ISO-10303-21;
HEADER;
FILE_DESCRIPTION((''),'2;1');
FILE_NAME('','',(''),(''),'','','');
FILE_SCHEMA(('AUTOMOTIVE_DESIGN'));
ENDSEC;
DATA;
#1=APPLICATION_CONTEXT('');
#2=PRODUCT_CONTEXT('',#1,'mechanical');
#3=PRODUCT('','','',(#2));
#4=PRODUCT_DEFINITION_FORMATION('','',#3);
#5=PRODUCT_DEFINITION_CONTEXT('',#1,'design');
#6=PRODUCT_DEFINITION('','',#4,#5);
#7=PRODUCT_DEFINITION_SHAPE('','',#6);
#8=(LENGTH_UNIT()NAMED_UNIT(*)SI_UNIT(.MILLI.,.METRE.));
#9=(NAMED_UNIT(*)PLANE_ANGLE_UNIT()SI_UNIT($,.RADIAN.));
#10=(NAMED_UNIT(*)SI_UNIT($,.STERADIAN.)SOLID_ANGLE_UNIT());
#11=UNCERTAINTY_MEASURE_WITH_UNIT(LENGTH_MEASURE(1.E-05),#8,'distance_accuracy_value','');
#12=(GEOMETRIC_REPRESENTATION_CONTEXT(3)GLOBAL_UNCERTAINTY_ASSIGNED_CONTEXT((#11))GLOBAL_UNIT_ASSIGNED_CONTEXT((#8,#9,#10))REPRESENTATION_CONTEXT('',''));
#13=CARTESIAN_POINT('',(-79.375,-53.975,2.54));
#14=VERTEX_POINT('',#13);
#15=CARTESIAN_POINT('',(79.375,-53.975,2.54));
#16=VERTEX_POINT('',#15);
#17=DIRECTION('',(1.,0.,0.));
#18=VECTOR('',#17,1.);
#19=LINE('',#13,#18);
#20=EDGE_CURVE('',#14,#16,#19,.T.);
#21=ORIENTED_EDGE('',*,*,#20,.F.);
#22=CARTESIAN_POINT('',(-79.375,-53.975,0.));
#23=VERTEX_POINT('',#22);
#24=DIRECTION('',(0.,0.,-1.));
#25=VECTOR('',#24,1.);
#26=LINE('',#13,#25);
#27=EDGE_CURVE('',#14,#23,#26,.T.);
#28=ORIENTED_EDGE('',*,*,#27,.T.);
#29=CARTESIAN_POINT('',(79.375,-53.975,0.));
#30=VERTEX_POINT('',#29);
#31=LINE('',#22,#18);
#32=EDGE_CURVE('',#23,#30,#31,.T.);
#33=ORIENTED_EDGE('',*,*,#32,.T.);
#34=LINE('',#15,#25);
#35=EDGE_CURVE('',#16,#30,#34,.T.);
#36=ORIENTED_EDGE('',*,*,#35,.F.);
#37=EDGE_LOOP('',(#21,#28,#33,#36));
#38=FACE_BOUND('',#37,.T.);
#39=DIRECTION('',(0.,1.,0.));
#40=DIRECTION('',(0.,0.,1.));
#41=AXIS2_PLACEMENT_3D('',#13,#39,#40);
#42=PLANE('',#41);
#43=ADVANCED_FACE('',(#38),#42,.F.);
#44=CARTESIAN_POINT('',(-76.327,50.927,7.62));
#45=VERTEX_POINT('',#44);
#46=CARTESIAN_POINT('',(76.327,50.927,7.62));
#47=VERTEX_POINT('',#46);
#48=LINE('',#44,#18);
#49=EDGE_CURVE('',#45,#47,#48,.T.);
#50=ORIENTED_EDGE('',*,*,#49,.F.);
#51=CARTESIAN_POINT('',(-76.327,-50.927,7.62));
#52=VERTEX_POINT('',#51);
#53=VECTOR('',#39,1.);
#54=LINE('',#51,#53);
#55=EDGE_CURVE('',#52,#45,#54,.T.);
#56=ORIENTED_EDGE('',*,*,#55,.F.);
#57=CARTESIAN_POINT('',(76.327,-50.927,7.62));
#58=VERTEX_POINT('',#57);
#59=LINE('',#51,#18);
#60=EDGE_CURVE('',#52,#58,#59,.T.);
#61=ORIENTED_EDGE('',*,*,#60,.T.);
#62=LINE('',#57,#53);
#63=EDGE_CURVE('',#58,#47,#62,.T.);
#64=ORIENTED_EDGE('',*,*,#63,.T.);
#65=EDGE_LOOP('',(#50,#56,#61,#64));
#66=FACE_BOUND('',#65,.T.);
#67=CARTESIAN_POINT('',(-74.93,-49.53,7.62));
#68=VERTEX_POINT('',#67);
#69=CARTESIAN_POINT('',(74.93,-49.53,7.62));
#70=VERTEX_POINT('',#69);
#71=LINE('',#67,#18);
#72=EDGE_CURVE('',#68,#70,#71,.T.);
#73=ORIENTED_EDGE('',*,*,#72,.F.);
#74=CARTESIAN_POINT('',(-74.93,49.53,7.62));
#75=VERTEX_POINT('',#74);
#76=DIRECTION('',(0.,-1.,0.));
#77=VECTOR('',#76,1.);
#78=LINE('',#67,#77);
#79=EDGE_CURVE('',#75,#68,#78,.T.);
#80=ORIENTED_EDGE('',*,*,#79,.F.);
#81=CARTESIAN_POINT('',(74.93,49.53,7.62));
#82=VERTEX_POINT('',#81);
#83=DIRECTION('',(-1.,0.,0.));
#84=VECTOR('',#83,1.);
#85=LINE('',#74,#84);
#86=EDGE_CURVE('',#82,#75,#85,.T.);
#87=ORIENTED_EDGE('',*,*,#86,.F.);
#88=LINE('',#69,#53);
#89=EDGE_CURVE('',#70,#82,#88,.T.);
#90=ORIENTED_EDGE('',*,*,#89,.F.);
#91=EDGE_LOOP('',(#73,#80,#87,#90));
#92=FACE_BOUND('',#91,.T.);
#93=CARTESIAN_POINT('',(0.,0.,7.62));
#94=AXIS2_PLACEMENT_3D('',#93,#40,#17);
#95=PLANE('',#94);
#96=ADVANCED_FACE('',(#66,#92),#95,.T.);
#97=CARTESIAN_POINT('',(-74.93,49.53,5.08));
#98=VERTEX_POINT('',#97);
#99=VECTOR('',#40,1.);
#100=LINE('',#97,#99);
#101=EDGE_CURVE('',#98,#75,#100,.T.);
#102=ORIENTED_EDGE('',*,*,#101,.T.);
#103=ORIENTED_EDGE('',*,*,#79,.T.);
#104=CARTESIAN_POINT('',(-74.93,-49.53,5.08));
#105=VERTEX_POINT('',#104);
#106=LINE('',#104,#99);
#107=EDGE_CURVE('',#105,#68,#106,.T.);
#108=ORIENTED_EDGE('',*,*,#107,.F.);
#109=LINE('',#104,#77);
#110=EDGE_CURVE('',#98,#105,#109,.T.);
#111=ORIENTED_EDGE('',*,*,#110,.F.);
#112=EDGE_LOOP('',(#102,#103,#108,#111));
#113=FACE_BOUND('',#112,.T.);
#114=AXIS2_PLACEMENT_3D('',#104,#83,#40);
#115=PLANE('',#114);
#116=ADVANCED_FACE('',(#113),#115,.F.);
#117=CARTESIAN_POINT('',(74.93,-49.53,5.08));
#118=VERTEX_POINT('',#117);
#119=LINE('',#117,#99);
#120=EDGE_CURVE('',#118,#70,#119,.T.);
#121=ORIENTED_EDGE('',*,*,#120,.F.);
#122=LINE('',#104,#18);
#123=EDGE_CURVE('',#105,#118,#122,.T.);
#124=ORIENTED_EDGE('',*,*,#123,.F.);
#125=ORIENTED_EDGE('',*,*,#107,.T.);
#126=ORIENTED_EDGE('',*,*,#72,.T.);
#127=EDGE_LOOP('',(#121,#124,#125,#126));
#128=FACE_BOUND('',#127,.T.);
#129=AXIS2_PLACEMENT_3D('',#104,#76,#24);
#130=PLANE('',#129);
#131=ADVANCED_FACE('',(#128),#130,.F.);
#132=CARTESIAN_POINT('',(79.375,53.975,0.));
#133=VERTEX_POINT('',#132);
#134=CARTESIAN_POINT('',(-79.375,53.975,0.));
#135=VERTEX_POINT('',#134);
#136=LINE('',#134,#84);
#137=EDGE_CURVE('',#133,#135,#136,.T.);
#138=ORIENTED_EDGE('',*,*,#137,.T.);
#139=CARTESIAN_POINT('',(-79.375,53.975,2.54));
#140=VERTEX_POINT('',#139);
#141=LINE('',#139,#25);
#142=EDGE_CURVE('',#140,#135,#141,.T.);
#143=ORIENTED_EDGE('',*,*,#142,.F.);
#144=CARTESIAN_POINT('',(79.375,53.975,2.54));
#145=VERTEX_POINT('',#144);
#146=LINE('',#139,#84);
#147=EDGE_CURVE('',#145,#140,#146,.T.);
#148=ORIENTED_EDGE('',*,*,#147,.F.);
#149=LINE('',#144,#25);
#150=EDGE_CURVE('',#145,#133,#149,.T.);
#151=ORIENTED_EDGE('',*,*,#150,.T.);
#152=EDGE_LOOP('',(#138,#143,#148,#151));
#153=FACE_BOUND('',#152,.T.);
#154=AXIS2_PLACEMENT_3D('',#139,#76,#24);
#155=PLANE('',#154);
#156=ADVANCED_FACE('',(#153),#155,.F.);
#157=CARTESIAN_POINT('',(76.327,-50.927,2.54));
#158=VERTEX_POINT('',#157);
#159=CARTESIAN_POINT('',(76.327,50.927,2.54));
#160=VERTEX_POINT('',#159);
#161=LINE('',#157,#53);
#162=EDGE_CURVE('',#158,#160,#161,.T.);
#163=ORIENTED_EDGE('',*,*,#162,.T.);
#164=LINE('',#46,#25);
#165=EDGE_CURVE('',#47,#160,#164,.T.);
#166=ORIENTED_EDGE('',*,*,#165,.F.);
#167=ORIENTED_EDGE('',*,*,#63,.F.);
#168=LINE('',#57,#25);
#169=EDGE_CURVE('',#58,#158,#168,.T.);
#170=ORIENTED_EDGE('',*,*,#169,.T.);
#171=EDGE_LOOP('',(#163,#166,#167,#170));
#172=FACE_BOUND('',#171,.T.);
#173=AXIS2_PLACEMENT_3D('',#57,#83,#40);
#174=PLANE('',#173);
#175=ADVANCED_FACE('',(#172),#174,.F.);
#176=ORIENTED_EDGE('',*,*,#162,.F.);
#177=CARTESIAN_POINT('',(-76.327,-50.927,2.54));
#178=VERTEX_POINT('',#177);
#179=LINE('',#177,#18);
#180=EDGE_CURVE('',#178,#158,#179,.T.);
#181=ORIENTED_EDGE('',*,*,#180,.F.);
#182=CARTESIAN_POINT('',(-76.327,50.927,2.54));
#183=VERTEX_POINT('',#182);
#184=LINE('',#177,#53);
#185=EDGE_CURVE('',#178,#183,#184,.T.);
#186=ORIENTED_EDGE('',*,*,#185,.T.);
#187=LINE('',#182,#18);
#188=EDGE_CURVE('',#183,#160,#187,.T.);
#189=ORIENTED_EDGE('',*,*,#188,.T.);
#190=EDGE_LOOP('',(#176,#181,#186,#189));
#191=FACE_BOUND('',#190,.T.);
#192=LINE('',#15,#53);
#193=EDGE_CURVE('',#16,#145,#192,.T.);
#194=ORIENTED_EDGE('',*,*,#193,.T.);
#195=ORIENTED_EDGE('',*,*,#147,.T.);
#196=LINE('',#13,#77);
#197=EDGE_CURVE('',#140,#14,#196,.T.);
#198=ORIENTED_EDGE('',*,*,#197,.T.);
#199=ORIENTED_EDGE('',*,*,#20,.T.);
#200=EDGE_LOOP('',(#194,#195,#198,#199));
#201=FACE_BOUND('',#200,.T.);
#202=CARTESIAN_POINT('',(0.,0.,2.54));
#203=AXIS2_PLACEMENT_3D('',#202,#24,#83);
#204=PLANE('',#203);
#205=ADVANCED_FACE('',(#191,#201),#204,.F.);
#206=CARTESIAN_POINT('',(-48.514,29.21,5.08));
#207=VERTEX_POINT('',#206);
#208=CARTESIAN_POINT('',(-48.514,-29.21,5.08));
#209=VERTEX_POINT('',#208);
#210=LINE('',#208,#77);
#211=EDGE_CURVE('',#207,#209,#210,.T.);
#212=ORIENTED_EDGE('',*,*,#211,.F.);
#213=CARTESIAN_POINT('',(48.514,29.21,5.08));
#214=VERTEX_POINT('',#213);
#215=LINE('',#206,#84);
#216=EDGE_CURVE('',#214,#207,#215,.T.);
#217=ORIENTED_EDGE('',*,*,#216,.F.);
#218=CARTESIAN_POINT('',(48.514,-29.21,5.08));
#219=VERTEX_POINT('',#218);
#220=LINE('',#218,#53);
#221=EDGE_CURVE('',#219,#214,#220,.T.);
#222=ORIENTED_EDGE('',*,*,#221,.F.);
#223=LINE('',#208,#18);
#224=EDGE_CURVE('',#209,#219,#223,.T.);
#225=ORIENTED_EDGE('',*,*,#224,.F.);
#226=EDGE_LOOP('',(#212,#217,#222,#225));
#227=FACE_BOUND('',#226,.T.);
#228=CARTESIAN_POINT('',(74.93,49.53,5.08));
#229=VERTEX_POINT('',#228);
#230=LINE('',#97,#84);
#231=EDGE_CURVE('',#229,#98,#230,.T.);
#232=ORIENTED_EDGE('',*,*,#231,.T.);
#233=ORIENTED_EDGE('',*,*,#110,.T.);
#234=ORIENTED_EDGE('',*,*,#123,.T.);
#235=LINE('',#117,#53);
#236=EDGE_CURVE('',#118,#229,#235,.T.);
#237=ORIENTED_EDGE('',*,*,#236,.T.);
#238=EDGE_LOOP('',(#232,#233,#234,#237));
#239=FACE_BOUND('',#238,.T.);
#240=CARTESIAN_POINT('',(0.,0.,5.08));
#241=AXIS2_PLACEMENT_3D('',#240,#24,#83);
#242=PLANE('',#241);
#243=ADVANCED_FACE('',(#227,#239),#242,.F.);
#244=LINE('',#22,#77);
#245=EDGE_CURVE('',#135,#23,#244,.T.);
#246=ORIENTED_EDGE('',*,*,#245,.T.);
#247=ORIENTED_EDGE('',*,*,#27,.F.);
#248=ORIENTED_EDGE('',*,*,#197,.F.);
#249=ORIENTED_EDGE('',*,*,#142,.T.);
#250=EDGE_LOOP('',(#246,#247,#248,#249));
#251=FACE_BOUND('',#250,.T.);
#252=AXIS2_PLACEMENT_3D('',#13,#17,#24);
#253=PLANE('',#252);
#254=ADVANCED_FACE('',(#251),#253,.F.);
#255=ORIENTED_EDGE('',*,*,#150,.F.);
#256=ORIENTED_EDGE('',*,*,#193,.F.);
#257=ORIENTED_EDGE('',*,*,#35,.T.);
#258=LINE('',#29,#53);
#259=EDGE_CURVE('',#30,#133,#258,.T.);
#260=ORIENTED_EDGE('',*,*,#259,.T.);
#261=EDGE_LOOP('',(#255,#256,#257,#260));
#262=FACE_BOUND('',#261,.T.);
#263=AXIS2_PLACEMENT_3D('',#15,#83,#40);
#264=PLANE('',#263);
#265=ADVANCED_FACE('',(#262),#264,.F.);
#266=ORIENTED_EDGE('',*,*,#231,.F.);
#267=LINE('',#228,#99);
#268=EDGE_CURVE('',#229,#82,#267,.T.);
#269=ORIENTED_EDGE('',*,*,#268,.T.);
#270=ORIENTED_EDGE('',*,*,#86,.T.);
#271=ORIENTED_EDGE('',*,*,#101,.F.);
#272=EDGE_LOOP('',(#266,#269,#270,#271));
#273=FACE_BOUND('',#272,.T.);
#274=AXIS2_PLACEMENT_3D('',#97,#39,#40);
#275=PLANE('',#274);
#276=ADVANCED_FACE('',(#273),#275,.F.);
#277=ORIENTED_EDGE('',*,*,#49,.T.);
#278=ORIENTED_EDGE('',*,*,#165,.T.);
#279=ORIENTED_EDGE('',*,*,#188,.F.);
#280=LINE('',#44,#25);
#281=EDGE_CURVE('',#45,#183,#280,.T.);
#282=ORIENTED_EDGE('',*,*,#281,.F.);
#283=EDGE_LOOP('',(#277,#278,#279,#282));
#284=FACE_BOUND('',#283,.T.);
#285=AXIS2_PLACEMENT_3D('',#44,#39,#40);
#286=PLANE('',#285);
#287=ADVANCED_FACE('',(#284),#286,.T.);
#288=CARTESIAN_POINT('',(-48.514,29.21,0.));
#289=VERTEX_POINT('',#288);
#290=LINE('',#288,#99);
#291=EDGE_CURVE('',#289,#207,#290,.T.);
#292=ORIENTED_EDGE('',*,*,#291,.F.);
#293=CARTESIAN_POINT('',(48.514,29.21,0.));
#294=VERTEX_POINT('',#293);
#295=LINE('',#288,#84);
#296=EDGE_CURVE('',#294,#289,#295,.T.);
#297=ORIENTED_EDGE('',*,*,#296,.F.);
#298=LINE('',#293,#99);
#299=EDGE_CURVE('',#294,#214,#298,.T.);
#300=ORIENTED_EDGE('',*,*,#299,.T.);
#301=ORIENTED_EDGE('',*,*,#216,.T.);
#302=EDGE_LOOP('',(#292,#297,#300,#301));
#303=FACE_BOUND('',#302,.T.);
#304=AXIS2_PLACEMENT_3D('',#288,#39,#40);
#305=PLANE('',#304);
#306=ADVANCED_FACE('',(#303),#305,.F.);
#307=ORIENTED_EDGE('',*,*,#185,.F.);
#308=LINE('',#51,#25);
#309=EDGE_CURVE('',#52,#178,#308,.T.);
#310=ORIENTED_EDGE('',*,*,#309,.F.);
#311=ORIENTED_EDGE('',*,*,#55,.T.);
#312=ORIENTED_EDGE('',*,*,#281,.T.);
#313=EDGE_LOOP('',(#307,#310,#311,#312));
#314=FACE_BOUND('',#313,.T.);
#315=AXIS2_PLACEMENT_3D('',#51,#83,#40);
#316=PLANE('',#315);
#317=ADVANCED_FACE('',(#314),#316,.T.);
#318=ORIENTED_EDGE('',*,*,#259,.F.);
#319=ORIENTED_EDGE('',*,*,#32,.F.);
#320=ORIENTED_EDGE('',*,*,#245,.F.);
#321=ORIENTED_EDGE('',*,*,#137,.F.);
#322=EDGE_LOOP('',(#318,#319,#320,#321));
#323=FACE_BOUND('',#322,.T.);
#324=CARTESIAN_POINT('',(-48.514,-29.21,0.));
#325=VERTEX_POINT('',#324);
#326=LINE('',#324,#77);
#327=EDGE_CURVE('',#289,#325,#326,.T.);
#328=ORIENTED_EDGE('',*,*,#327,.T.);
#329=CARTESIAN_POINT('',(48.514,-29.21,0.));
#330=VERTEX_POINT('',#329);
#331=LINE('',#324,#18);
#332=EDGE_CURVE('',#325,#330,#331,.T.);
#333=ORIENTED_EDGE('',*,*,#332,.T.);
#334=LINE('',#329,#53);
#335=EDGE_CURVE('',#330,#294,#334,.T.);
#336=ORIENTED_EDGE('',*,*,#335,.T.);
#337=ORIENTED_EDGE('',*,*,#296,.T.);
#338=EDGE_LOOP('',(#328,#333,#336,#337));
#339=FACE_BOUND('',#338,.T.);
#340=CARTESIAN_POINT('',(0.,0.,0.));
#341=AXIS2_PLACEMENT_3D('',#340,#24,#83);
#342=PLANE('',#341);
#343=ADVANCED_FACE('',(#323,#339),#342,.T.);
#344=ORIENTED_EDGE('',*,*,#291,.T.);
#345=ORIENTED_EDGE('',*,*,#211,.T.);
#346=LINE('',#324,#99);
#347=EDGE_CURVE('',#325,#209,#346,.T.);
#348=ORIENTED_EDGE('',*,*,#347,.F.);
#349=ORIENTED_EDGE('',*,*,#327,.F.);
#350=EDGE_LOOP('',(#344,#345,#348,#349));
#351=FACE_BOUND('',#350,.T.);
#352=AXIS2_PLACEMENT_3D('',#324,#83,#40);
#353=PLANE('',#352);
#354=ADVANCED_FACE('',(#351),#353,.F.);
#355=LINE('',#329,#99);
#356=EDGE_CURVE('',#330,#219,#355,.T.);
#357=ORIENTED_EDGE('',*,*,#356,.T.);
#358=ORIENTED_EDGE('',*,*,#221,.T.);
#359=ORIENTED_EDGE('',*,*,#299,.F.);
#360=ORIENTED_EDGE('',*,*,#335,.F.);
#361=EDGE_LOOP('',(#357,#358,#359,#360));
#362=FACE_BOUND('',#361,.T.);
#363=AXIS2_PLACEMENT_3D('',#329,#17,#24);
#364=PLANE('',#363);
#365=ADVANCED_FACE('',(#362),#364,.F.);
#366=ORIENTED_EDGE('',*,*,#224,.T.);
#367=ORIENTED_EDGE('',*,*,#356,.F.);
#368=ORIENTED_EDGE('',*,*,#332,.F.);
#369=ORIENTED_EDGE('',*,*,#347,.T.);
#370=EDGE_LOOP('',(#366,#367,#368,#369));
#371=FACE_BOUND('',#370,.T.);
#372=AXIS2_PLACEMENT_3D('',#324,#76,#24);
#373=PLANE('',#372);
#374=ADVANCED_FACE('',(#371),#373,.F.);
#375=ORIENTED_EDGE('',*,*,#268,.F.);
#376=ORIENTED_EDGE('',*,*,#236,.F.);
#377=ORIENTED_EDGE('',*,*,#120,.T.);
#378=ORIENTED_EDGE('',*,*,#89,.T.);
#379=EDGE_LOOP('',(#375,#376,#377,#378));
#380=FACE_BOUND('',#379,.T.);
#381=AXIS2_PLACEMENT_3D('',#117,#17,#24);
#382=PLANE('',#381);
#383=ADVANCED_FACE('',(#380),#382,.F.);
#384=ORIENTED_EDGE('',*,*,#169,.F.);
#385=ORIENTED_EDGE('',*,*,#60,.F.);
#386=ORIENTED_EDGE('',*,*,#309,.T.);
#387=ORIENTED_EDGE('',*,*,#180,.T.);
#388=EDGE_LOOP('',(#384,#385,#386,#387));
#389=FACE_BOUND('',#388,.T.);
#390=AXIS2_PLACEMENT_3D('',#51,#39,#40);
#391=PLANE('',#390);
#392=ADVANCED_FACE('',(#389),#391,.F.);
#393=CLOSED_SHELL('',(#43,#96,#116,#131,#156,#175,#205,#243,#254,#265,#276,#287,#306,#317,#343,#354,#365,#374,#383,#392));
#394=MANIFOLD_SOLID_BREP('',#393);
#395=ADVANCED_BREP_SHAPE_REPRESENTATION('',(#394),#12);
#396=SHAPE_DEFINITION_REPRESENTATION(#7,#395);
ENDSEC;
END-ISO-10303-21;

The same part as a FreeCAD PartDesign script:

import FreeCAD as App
import Part
import Sketcher

V = App.Vector
Q = App.Units.Quantity

doc = App.newDocument("Part")
body = doc.addObject("PartDesign::Body", "Body")

sketch1 = body.newObject("Sketcher::SketchObject", "Sketch")
sketch1.AttachmentSupport = (doc.getObject("XY_Plane"), [""])
sketch1.MapMode = "FlatFace"
sketch1.addGeometry(Part.LineSegment(V(-79, 54, 0), V(-79, -54, 0)), False)
sketch1.addGeometry(Part.LineSegment(V(-79, -54, 0), V(79, -54, 0)), False)
sketch1.addGeometry(Part.LineSegment(V(79, -54, 0), V(79, 54, 0)), False)
sketch1.addGeometry(Part.LineSegment(V(79, 54, 0), V(-79, 54, 0)), False)
sketch1.addConstraint(Sketcher.Constraint("Coincident", 0, 2, 1, 1))
sketch1.addConstraint(Sketcher.Constraint("Coincident", 1, 2, 2, 1))
sketch1.addConstraint(Sketcher.Constraint("Coincident", 2, 2, 3, 1))
sketch1.addConstraint(Sketcher.Constraint("Coincident", 3, 2, 0, 1))
sketch1.addConstraint(Sketcher.Constraint("Vertical", 0))
sketch1.addConstraint(Sketcher.Constraint("Horizontal", 1))
sketch1.addConstraint(Sketcher.Constraint("Vertical", 2))
sketch1.addConstraint(Sketcher.Constraint("Horizontal", 3))
sketch1.addConstraint(Sketcher.Constraint("Symmetric", 0, 2, 2, 2, -1, 1))
sketch1.addConstraint(Sketcher.Constraint("DistanceX", 1, 1, 1, 2, Q("6.25 in")))
sketch1.addConstraint(Sketcher.Constraint("DistanceY", 0, 2, 0, 1, Q("4.25 in")))
pad1 = body.newObject("PartDesign::Pad", "Pad")
pad1.Profile = sketch1
pad1.Length = Q("0.1 in")

sketch2 = body.newObject("Sketcher::SketchObject", "Sketch001")
sketch2.AttachmentSupport = (doc.getObject("XY_Plane"), [""])
sketch2.MapMode = "FlatFace"
sketch2.AttachmentOffset = App.Placement(V(0, 0, 0.1 * 25.4), App.Rotation())
sketch2.addGeometry(Part.LineSegment(V(-76, 51, 0), V(-76, -51, 0)), False)
sketch2.addGeometry(Part.LineSegment(V(-76, -51, 0), V(76, -51, 0)), False)
sketch2.addGeometry(Part.LineSegment(V(76, -51, 0), V(76, 51, 0)), False)
sketch2.addGeometry(Part.LineSegment(V(76, 51, 0), V(-76, 51, 0)), False)
sketch2.addConstraint(Sketcher.Constraint("Coincident", 0, 2, 1, 1))
sketch2.addConstraint(Sketcher.Constraint("Coincident", 1, 2, 2, 1))
sketch2.addConstraint(Sketcher.Constraint("Coincident", 2, 2, 3, 1))
sketch2.addConstraint(Sketcher.Constraint("Coincident", 3, 2, 0, 1))
sketch2.addConstraint(Sketcher.Constraint("Vertical", 0))
sketch2.addConstraint(Sketcher.Constraint("Horizontal", 1))
sketch2.addConstraint(Sketcher.Constraint("Vertical", 2))
sketch2.addConstraint(Sketcher.Constraint("Horizontal", 3))
sketch2.addConstraint(Sketcher.Constraint("Symmetric", 0, 2, 2, 2, -1, 1))
sketch2.addConstraint(Sketcher.Constraint("DistanceX", 1, 1, 1, 2, Q("6.01 in")))
sketch2.addConstraint(Sketcher.Constraint("DistanceY", 0, 2, 0, 1, Q("4.01 in")))
pad2 = body.newObject("PartDesign::Pad", "Pad001")
pad2.Profile = sketch2
pad2.Length = Q("0.2 in")

sketch3 = body.newObject("Sketcher::SketchObject", "Sketch002")
sketch3.AttachmentSupport = (doc.getObject("XY_Plane"), [""])
sketch3.MapMode = "FlatFace"
sketch3.AttachmentOffset = App.Placement(V(0, 0, 0.3 * 25.4), App.Rotation())
sketch3.addGeometry(Part.LineSegment(V(-75, 50, 0), V(-75, -50, 0)), False)
sketch3.addGeometry(Part.LineSegment(V(-75, -50, 0), V(75, -50, 0)), False)
sketch3.addGeometry(Part.LineSegment(V(75, -50, 0), V(75, 50, 0)), False)
sketch3.addGeometry(Part.LineSegment(V(75, 50, 0), V(-75, 50, 0)), False)
sketch3.addConstraint(Sketcher.Constraint("Coincident", 0, 2, 1, 1))
sketch3.addConstraint(Sketcher.Constraint("Coincident", 1, 2, 2, 1))
sketch3.addConstraint(Sketcher.Constraint("Coincident", 2, 2, 3, 1))
sketch3.addConstraint(Sketcher.Constraint("Coincident", 3, 2, 0, 1))
sketch3.addConstraint(Sketcher.Constraint("Vertical", 0))
sketch3.addConstraint(Sketcher.Constraint("Horizontal", 1))
sketch3.addConstraint(Sketcher.Constraint("Vertical", 2))
sketch3.addConstraint(Sketcher.Constraint("Horizontal", 3))
sketch3.addConstraint(Sketcher.Constraint("Symmetric", 0, 2, 2, 2, -1, 1))
sketch3.addConstraint(Sketcher.Constraint("DistanceX", 1, 1, 1, 2, Q("5.9 in")))
sketch3.addConstraint(Sketcher.Constraint("DistanceY", 0, 2, 0, 1, Q("3.9 in")))
pocket1 = body.newObject("PartDesign::Pocket", "Pocket")
pocket1.Profile = sketch3
pocket1.Length = Q("0.1 in")

sketch4 = body.newObject("Sketcher::SketchObject", "Sketch003")
sketch4.AttachmentSupport = (doc.getObject("XY_Plane"), [""])
sketch4.MapMode = "FlatFace"
sketch4.AttachmentOffset = App.Placement(V(0, 0, 0.2 * 25.4), App.Rotation())
sketch4.addGeometry(Part.LineSegment(V(-49, 29, 0), V(-49, -29, 0)), False)
sketch4.addGeometry(Part.LineSegment(V(-49, -29, 0), V(49, -29, 0)), False)
sketch4.addGeometry(Part.LineSegment(V(49, -29, 0), V(49, 29, 0)), False)
sketch4.addGeometry(Part.LineSegment(V(49, 29, 0), V(-49, 29, 0)), False)
sketch4.addConstraint(Sketcher.Constraint("Coincident", 0, 2, 1, 1))
sketch4.addConstraint(Sketcher.Constraint("Coincident", 1, 2, 2, 1))
sketch4.addConstraint(Sketcher.Constraint("Coincident", 2, 2, 3, 1))
sketch4.addConstraint(Sketcher.Constraint("Coincident", 3, 2, 0, 1))
sketch4.addConstraint(Sketcher.Constraint("Vertical", 0))
sketch4.addConstraint(Sketcher.Constraint("Horizontal", 1))
sketch4.addConstraint(Sketcher.Constraint("Vertical", 2))
sketch4.addConstraint(Sketcher.Constraint("Horizontal", 3))
sketch4.addConstraint(Sketcher.Constraint("Symmetric", 0, 2, 2, 2, -1, 1))
sketch4.addConstraint(Sketcher.Constraint("DistanceY", 0, 2, 0, 1, Q("2.3 in")))
sketch4.addConstraint(Sketcher.Constraint("DistanceX", 1, 1, 1, 2, Q("3.82 in")))
pocket2 = body.newObject("PartDesign::Pocket", "Pocket001")
pocket2.Profile = sketch4
pocket2.Type = "ThroughAll"

doc.recompute()
